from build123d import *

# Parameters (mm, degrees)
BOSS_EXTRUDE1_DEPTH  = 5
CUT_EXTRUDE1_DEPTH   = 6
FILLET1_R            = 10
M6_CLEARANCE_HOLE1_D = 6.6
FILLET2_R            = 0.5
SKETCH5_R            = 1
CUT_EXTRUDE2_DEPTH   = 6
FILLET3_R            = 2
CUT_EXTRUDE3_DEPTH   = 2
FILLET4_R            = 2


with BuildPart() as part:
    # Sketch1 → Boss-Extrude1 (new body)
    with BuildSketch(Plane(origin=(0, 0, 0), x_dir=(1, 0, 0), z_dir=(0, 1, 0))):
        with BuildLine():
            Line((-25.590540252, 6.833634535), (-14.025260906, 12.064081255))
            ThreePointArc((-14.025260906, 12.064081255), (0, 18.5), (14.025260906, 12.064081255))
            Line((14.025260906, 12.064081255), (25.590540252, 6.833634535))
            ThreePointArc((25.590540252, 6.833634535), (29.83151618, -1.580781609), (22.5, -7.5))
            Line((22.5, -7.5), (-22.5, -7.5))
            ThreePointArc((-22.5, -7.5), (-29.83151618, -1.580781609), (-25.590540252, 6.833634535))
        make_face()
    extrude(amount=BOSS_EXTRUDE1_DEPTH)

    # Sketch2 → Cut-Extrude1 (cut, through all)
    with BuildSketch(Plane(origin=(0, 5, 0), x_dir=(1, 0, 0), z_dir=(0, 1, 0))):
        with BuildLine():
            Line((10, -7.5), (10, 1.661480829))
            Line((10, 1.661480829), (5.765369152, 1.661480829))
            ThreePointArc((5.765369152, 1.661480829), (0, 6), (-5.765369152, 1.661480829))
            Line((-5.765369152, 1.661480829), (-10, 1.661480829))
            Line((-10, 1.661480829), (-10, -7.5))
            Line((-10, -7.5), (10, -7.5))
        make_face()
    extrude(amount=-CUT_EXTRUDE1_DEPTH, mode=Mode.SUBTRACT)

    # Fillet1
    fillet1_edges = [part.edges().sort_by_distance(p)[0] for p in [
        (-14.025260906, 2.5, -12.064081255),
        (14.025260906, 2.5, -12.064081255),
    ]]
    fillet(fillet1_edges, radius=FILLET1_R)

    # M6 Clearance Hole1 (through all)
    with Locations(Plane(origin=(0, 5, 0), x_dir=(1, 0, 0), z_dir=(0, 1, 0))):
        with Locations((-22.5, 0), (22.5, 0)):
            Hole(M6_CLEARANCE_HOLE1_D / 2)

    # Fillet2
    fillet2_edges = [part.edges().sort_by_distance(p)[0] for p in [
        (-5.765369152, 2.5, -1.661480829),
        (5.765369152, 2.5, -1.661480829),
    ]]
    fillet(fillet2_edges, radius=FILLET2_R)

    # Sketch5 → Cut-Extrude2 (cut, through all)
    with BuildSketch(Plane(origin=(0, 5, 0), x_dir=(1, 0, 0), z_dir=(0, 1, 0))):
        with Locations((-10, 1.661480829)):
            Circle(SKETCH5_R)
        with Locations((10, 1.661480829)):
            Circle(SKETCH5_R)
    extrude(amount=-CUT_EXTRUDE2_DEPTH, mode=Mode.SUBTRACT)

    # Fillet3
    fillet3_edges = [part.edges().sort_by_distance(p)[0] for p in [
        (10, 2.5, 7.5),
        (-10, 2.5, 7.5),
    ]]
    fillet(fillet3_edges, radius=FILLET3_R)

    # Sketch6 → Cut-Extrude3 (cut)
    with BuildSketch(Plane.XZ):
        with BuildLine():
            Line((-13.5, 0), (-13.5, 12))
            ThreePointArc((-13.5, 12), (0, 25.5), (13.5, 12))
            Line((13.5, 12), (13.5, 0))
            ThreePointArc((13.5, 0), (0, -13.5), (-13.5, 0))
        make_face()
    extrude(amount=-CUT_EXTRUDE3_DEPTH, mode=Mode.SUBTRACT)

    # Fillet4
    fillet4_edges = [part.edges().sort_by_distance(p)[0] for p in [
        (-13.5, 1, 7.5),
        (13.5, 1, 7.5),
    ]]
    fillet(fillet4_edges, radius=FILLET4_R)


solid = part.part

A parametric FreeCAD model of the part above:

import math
import FreeCAD as App
import Part
import Sketcher

V = App.Vector
Q = App.Units.Quantity


def edges_at(feature, points):
    """Names of the edges that pass closest to the given points."""
    edges = feature.Shape.Edges
    near = lambda p: min(range(len(edges)), key=lambda i: edges[i].distToShape(Part.Vertex(*p))[0])
    return sorted({f"Edge{near(p) + 1}" for p in points})

doc = App.newDocument("Part")
body = doc.addObject("PartDesign::Body", "Body")

sketch1 = body.newObject("Sketcher::SketchObject", "Sketch")
sketch1.AttachmentSupport = (doc.getObject("XZ_Plane"), [""])
sketch1.MapMode = "FlatFace"
sketch1.addGeometry(Part.LineSegment(V(-14, -12, 0), V(-26, -7, 0)), False)
sketch1.addGeometry(Part.ArcOfCircle(Part.Circle(V(-22, 0, 0), V(0, 0, 1), 8), math.radians(90), math.radians(246)), False)
sketch1.addGeometry(Part.LineSegment(V(-22, 8, 0), V(22, 8, 0)), False)
sketch1.addGeometry(Part.ArcOfCircle(Part.Circle(V(22, 0, 0), V(0, 0, 1), 8), math.radians(-66), math.radians(90)), False)
sketch1.addGeometry(Part.LineSegment(V(26, -7, 0), V(14, -12, 0)), False)
sketch1.addGeometry(Part.ArcOfCircle(Part.Circle(V(0, 0, 0), V(0, 0, 1), 19), math.radians(-139), math.radians(-41)), False)
sketch1.addConstraint(Sketcher.Constraint("Tangent", 0, 2, 1, 2))
sketch1.addConstraint(Sketcher.Constraint("Tangent", 1, 1, 2, 1))
sketch1.addConstraint(Sketcher.Constraint("Tangent", 2, 2, 3, 2))
sketch1.addConstraint(Sketcher.Constraint("Tangent", 3, 1, 4, 1))
sketch1.addConstraint(Sketcher.Constraint("Coincident", 4, 2, 5, 2))
sketch1.addConstraint(Sketcher.Constraint("Coincident", 5, 1, 0, 1))
sketch1.addConstraint(Sketcher.Constraint("Horizontal", 2))
sketch1.addConstraint(Sketcher.Constraint("Coincident", 5, 3, -1, 1))
sketch1.addConstraint(Sketcher.Constraint("Equal", 1, 3))
sketch1.addConstraint(Sketcher.Constraint("Symmetric", 1, 3, 3, 3, -1, 1))
sketch1.addConstraint(Sketcher.Constraint("Horizontal", 0, 2, 3, 1))
sketch1.addConstraint(Sketcher.Constraint("Radius", 1, Q("7.5 mm")))
sketch1.addConstraint(Sketcher.Constraint("Radius", 5, Q("18.5 mm")))
sketch1.addConstraint(Sketcher.Constraint("DistanceX", 2, 1, 2, 2, Q("45 mm")))
sketch1.addConstraint(Sketcher.Constraint("Distance", 0, Q("12.69304 mm")))
pad1 = body.newObject("PartDesign::Pad", "Pad")
pad1.Profile = sketch1
pad1.Length = 5
pad1.Reversed = True

sketch2 = body.newObject("Sketcher::SketchObject", "Sketch001")
sketch2.AttachmentSupport = (doc.getObject("XZ_Plane"), [""])
sketch2.MapMode = "FlatFace"
sketch2.AttachmentOffset = App.Placement(V(0, 0, -5), App.Rotation())
sketch2.addGeometry(Part.LineSegment(V(10, 7.5, 0), V(10, -1.7, 0)), False)
sketch2.addGeometry(Part.LineSegment(V(10, -1.7, 0), V(5.8, -1.7, 0)), False)
sketch2.addGeometry(Part.ArcOfCircle(Part.Circle(V(0, 0, 0), V(0, 0, 1), 6), math.radians(-164), math.radians(-16)), False)
sketch2.addGeometry(Part.LineSegment(V(-5.8, -1.7, 0), V(-10, -1.7, 0)), False)
sketch2.addGeometry(Part.LineSegment(V(-10, -1.7, 0), V(-10, 7.5, 0)), False)
sketch2.addGeometry(Part.LineSegment(V(-10, 7.5, 0), V(10, 7.5, 0)), False)
sketch2.addConstraint(Sketcher.Constraint("Coincident", 0, 2, 1, 1))
sketch2.addConstraint(Sketcher.Constraint("Coincident", 1, 2, 2, 2))
sketch2.addConstraint(Sketcher.Constraint("Coincident", 2, 1, 3, 1))
sketch2.addConstraint(Sketcher.Constraint("Coincident", 3, 2, 4, 1))
sketch2.addConstraint(Sketcher.Constraint("Coincident", 4, 2, 5, 1))
sketch2.addConstraint(Sketcher.Constraint("Coincident", 5, 2, 0, 1))
sketch2.addConstraint(Sketcher.Constraint("Vertical", 0))
sketch2.addConstraint(Sketcher.Constraint("Horizontal", 1))
sketch2.addConstraint(Sketcher.Constraint("Horizontal", 3))
sketch2.addConstraint(Sketcher.Constraint("Vertical", 4))
sketch2.addConstraint(Sketcher.Constraint("Horizontal", 5))
sketch2.addConstraint(Sketcher.Constraint("Coincident", 2, 3, -1, 1))
sketch2.addConstraint(Sketcher.Constraint("Symmetric", 0, 2, 3, 2, -2))
sketch2.addConstraint(Sketcher.Constraint("Radius", 2, Q("6 mm")))
sketch2.addConstraint(Sketcher.Constraint("DistanceX", 5, 1, 5, 2, Q("20 mm")))
sketch2.addConstraint(Sketcher.Constraint("DistanceY", -1, 1, 4, 2, Q("7.5 mm")))
sketch2.addConstraint(Sketcher.Constraint("DistanceX", 1, 2, 1, 1, Q("4.234631 mm")))
pocket1 = body.newObject("PartDesign::Pocket", "Pocket")
pocket1.Profile = sketch2
pocket1.Type = "ThroughAll"
pocket1.Reversed = True
doc.recompute()

fillet = body.newObject("PartDesign::Fillet", "Fillet")
fillet.Base = (pocket1, edges_at(pocket1, [(-14.025, 2.5, -12.064), (14.025, 2.5, -12.064)]))
fillet.Radius = 10

sketch3 = body.newObject("Sketcher::SketchObject", "Sketch002")
sketch3.AttachmentSupport = (doc.getObject("XZ_Plane"), [""])
sketch3.MapMode = "FlatFace"
sketch3.AttachmentOffset = App.Placement(V(0, 0, -5), App.Rotation())
sketch3.addGeometry(Part.Circle(V(-22.5, 0, 0), V(0, 0, 1), 3.3), False)
sketch3.addGeometry(Part.Circle(V(22.5, 0, 0), V(0, 0, 1), 3.3), False)
sketch3.addConstraint(Sketcher.Constraint("Equal", 0, 1))
sketch3.addConstraint(Sketcher.Constraint("Symmetric", 0, 3, 1, 3, -1, 1))
sketch3.addConstraint(Sketcher.Constraint("PointOnObject", 0, 3, -1))
sketch3.addConstraint(Sketcher.Constraint("Diameter", 0, Q("6.6 mm")))
sketch3.addConstraint(Sketcher.Constraint("DistanceX", 0, 3, 1, 3, Q("45 mm")))
doc.recompute()
hole = body.newObject("PartDesign::Hole", "Hole")
hole.Profile = sketch3
hole.ThreadType = "None"
hole.Diameter = 6.6
hole.DepthType = "ThroughAll"
hole.Reversed = True
doc.recompute()

fillet2 = body.newObject("PartDesign::Fillet", "Fillet001")
fillet2.Base = (hole, edges_at(hole, [(-5.765, 2.5, -1.661), (5.765, 2.5, -1.661)]))
fillet2.Radius = 0.5

sketch4 = body.newObject("Sketcher::SketchObject", "Sketch003")
sketch4.AttachmentSupport = (doc.getObject("XZ_Plane"), [""])
sketch4.MapMode = "FlatFace"
sketch4.AttachmentOffset = App.Placement(V(0, 0, -5), App.Rotation())
sketch4.addGeometry(Part.Circle(V(-10, -1.7, 0), V(0, 0, 1), 1), False)
sketch4.addGeometry(Part.Circle(V(10, -1.7, 0), V(0, 0, 1), 1), False)
sketch4.addConstraint(Sketcher.Constraint("Equal", 0, 1))
sketch4.addConstraint(Sketcher.Constraint("Symmetric", 0, 3, 1, 3, -2))
sketch4.addConstraint(Sketcher.Constraint("Diameter", 0, Q("2 mm")))
sketch4.addConstraint(Sketcher.Constraint("DistanceX", 0, 3, -1, 1, Q("10 mm")))
sketch4.addConstraint(Sketcher.Constraint("DistanceY", 0, 3, -1, 1, Q("1.661481 mm")))
pocket2 = body.newObject("PartDesign::Pocket", "Pocket001")
pocket2.Profile = sketch4
pocket2.Type = "ThroughAll"
pocket2.Reversed = True
doc.recompute()

fillet3 = body.newObject("PartDesign::Fillet", "Fillet002")
fillet3.Base = (pocket2, edges_at(pocket2, [(10, 2.5, 7.5), (-10, 2.5, 7.5)]))
fillet3.Radius = 2

sketch5 = body.newObject("Sketcher::SketchObject", "Sketch004")
sketch5.AttachmentSupport = (doc.getObject("XZ_Plane"), [""])
sketch5.MapMode = "FlatFace"
sketch5.addGeometry(Part.LineSegment(V(-14, 12, 0), V(-14, 0, 0)), False)
sketch5.addGeometry(Part.ArcOfCircle(Part.Circle(V(0, 0, 0), V(0, 0, 1), 14), math.radians(180), math.radians(360)), False)
sketch5.addGeometry(Part.LineSegment(V(14, 0, 0), V(14, 12, 0)), False)
sketch5.addGeometry(Part.ArcOfCircle(Part.Circle(V(0, 12, 0), V(0, 0, 1), 14), math.radians(0), math.radians(180)), False)
sketch5.addConstraint(Sketcher.Constraint("Tangent", 0, 2, 1, 1))
sketch5.addConstraint(Sketcher.Constraint("Tangent", 1, 2, 2, 1))
sketch5.addConstraint(Sketcher.Constraint("Tangent", 2, 2, 3, 1))
sketch5.addConstraint(Sketcher.Constraint("Tangent", 3, 2, 0, 1))
sketch5.addConstraint(Sketcher.Constraint("Vertical", 0))
sketch5.addConstraint(Sketcher.Constraint("Vertical", 2))
sketch5.addConstraint(Sketcher.Constraint("Coincident", 1, 3, -1, 1))
sketch5.addConstraint(Sketcher.Constraint("Radius", 1, Q("13.5 mm")))
sketch5.addConstraint(Sketcher.Constraint("DistanceY", 0, 2, 0, 1, Q("12 mm")))
pocket3 = body.newObject("PartDesign::Pocket", "Pocket002")
pocket3.Profile = sketch5
pocket3.Length = 2
doc.recompute()

fillet4 = body.newObject("PartDesign::Fillet", "Fillet003")
fillet4.Base = (pocket3, edges_at(pocket3, [(-13.5, 1, 7.5), (13.5, 1, 7.5)]))
fillet4.Radius = 2

doc.recompute()
